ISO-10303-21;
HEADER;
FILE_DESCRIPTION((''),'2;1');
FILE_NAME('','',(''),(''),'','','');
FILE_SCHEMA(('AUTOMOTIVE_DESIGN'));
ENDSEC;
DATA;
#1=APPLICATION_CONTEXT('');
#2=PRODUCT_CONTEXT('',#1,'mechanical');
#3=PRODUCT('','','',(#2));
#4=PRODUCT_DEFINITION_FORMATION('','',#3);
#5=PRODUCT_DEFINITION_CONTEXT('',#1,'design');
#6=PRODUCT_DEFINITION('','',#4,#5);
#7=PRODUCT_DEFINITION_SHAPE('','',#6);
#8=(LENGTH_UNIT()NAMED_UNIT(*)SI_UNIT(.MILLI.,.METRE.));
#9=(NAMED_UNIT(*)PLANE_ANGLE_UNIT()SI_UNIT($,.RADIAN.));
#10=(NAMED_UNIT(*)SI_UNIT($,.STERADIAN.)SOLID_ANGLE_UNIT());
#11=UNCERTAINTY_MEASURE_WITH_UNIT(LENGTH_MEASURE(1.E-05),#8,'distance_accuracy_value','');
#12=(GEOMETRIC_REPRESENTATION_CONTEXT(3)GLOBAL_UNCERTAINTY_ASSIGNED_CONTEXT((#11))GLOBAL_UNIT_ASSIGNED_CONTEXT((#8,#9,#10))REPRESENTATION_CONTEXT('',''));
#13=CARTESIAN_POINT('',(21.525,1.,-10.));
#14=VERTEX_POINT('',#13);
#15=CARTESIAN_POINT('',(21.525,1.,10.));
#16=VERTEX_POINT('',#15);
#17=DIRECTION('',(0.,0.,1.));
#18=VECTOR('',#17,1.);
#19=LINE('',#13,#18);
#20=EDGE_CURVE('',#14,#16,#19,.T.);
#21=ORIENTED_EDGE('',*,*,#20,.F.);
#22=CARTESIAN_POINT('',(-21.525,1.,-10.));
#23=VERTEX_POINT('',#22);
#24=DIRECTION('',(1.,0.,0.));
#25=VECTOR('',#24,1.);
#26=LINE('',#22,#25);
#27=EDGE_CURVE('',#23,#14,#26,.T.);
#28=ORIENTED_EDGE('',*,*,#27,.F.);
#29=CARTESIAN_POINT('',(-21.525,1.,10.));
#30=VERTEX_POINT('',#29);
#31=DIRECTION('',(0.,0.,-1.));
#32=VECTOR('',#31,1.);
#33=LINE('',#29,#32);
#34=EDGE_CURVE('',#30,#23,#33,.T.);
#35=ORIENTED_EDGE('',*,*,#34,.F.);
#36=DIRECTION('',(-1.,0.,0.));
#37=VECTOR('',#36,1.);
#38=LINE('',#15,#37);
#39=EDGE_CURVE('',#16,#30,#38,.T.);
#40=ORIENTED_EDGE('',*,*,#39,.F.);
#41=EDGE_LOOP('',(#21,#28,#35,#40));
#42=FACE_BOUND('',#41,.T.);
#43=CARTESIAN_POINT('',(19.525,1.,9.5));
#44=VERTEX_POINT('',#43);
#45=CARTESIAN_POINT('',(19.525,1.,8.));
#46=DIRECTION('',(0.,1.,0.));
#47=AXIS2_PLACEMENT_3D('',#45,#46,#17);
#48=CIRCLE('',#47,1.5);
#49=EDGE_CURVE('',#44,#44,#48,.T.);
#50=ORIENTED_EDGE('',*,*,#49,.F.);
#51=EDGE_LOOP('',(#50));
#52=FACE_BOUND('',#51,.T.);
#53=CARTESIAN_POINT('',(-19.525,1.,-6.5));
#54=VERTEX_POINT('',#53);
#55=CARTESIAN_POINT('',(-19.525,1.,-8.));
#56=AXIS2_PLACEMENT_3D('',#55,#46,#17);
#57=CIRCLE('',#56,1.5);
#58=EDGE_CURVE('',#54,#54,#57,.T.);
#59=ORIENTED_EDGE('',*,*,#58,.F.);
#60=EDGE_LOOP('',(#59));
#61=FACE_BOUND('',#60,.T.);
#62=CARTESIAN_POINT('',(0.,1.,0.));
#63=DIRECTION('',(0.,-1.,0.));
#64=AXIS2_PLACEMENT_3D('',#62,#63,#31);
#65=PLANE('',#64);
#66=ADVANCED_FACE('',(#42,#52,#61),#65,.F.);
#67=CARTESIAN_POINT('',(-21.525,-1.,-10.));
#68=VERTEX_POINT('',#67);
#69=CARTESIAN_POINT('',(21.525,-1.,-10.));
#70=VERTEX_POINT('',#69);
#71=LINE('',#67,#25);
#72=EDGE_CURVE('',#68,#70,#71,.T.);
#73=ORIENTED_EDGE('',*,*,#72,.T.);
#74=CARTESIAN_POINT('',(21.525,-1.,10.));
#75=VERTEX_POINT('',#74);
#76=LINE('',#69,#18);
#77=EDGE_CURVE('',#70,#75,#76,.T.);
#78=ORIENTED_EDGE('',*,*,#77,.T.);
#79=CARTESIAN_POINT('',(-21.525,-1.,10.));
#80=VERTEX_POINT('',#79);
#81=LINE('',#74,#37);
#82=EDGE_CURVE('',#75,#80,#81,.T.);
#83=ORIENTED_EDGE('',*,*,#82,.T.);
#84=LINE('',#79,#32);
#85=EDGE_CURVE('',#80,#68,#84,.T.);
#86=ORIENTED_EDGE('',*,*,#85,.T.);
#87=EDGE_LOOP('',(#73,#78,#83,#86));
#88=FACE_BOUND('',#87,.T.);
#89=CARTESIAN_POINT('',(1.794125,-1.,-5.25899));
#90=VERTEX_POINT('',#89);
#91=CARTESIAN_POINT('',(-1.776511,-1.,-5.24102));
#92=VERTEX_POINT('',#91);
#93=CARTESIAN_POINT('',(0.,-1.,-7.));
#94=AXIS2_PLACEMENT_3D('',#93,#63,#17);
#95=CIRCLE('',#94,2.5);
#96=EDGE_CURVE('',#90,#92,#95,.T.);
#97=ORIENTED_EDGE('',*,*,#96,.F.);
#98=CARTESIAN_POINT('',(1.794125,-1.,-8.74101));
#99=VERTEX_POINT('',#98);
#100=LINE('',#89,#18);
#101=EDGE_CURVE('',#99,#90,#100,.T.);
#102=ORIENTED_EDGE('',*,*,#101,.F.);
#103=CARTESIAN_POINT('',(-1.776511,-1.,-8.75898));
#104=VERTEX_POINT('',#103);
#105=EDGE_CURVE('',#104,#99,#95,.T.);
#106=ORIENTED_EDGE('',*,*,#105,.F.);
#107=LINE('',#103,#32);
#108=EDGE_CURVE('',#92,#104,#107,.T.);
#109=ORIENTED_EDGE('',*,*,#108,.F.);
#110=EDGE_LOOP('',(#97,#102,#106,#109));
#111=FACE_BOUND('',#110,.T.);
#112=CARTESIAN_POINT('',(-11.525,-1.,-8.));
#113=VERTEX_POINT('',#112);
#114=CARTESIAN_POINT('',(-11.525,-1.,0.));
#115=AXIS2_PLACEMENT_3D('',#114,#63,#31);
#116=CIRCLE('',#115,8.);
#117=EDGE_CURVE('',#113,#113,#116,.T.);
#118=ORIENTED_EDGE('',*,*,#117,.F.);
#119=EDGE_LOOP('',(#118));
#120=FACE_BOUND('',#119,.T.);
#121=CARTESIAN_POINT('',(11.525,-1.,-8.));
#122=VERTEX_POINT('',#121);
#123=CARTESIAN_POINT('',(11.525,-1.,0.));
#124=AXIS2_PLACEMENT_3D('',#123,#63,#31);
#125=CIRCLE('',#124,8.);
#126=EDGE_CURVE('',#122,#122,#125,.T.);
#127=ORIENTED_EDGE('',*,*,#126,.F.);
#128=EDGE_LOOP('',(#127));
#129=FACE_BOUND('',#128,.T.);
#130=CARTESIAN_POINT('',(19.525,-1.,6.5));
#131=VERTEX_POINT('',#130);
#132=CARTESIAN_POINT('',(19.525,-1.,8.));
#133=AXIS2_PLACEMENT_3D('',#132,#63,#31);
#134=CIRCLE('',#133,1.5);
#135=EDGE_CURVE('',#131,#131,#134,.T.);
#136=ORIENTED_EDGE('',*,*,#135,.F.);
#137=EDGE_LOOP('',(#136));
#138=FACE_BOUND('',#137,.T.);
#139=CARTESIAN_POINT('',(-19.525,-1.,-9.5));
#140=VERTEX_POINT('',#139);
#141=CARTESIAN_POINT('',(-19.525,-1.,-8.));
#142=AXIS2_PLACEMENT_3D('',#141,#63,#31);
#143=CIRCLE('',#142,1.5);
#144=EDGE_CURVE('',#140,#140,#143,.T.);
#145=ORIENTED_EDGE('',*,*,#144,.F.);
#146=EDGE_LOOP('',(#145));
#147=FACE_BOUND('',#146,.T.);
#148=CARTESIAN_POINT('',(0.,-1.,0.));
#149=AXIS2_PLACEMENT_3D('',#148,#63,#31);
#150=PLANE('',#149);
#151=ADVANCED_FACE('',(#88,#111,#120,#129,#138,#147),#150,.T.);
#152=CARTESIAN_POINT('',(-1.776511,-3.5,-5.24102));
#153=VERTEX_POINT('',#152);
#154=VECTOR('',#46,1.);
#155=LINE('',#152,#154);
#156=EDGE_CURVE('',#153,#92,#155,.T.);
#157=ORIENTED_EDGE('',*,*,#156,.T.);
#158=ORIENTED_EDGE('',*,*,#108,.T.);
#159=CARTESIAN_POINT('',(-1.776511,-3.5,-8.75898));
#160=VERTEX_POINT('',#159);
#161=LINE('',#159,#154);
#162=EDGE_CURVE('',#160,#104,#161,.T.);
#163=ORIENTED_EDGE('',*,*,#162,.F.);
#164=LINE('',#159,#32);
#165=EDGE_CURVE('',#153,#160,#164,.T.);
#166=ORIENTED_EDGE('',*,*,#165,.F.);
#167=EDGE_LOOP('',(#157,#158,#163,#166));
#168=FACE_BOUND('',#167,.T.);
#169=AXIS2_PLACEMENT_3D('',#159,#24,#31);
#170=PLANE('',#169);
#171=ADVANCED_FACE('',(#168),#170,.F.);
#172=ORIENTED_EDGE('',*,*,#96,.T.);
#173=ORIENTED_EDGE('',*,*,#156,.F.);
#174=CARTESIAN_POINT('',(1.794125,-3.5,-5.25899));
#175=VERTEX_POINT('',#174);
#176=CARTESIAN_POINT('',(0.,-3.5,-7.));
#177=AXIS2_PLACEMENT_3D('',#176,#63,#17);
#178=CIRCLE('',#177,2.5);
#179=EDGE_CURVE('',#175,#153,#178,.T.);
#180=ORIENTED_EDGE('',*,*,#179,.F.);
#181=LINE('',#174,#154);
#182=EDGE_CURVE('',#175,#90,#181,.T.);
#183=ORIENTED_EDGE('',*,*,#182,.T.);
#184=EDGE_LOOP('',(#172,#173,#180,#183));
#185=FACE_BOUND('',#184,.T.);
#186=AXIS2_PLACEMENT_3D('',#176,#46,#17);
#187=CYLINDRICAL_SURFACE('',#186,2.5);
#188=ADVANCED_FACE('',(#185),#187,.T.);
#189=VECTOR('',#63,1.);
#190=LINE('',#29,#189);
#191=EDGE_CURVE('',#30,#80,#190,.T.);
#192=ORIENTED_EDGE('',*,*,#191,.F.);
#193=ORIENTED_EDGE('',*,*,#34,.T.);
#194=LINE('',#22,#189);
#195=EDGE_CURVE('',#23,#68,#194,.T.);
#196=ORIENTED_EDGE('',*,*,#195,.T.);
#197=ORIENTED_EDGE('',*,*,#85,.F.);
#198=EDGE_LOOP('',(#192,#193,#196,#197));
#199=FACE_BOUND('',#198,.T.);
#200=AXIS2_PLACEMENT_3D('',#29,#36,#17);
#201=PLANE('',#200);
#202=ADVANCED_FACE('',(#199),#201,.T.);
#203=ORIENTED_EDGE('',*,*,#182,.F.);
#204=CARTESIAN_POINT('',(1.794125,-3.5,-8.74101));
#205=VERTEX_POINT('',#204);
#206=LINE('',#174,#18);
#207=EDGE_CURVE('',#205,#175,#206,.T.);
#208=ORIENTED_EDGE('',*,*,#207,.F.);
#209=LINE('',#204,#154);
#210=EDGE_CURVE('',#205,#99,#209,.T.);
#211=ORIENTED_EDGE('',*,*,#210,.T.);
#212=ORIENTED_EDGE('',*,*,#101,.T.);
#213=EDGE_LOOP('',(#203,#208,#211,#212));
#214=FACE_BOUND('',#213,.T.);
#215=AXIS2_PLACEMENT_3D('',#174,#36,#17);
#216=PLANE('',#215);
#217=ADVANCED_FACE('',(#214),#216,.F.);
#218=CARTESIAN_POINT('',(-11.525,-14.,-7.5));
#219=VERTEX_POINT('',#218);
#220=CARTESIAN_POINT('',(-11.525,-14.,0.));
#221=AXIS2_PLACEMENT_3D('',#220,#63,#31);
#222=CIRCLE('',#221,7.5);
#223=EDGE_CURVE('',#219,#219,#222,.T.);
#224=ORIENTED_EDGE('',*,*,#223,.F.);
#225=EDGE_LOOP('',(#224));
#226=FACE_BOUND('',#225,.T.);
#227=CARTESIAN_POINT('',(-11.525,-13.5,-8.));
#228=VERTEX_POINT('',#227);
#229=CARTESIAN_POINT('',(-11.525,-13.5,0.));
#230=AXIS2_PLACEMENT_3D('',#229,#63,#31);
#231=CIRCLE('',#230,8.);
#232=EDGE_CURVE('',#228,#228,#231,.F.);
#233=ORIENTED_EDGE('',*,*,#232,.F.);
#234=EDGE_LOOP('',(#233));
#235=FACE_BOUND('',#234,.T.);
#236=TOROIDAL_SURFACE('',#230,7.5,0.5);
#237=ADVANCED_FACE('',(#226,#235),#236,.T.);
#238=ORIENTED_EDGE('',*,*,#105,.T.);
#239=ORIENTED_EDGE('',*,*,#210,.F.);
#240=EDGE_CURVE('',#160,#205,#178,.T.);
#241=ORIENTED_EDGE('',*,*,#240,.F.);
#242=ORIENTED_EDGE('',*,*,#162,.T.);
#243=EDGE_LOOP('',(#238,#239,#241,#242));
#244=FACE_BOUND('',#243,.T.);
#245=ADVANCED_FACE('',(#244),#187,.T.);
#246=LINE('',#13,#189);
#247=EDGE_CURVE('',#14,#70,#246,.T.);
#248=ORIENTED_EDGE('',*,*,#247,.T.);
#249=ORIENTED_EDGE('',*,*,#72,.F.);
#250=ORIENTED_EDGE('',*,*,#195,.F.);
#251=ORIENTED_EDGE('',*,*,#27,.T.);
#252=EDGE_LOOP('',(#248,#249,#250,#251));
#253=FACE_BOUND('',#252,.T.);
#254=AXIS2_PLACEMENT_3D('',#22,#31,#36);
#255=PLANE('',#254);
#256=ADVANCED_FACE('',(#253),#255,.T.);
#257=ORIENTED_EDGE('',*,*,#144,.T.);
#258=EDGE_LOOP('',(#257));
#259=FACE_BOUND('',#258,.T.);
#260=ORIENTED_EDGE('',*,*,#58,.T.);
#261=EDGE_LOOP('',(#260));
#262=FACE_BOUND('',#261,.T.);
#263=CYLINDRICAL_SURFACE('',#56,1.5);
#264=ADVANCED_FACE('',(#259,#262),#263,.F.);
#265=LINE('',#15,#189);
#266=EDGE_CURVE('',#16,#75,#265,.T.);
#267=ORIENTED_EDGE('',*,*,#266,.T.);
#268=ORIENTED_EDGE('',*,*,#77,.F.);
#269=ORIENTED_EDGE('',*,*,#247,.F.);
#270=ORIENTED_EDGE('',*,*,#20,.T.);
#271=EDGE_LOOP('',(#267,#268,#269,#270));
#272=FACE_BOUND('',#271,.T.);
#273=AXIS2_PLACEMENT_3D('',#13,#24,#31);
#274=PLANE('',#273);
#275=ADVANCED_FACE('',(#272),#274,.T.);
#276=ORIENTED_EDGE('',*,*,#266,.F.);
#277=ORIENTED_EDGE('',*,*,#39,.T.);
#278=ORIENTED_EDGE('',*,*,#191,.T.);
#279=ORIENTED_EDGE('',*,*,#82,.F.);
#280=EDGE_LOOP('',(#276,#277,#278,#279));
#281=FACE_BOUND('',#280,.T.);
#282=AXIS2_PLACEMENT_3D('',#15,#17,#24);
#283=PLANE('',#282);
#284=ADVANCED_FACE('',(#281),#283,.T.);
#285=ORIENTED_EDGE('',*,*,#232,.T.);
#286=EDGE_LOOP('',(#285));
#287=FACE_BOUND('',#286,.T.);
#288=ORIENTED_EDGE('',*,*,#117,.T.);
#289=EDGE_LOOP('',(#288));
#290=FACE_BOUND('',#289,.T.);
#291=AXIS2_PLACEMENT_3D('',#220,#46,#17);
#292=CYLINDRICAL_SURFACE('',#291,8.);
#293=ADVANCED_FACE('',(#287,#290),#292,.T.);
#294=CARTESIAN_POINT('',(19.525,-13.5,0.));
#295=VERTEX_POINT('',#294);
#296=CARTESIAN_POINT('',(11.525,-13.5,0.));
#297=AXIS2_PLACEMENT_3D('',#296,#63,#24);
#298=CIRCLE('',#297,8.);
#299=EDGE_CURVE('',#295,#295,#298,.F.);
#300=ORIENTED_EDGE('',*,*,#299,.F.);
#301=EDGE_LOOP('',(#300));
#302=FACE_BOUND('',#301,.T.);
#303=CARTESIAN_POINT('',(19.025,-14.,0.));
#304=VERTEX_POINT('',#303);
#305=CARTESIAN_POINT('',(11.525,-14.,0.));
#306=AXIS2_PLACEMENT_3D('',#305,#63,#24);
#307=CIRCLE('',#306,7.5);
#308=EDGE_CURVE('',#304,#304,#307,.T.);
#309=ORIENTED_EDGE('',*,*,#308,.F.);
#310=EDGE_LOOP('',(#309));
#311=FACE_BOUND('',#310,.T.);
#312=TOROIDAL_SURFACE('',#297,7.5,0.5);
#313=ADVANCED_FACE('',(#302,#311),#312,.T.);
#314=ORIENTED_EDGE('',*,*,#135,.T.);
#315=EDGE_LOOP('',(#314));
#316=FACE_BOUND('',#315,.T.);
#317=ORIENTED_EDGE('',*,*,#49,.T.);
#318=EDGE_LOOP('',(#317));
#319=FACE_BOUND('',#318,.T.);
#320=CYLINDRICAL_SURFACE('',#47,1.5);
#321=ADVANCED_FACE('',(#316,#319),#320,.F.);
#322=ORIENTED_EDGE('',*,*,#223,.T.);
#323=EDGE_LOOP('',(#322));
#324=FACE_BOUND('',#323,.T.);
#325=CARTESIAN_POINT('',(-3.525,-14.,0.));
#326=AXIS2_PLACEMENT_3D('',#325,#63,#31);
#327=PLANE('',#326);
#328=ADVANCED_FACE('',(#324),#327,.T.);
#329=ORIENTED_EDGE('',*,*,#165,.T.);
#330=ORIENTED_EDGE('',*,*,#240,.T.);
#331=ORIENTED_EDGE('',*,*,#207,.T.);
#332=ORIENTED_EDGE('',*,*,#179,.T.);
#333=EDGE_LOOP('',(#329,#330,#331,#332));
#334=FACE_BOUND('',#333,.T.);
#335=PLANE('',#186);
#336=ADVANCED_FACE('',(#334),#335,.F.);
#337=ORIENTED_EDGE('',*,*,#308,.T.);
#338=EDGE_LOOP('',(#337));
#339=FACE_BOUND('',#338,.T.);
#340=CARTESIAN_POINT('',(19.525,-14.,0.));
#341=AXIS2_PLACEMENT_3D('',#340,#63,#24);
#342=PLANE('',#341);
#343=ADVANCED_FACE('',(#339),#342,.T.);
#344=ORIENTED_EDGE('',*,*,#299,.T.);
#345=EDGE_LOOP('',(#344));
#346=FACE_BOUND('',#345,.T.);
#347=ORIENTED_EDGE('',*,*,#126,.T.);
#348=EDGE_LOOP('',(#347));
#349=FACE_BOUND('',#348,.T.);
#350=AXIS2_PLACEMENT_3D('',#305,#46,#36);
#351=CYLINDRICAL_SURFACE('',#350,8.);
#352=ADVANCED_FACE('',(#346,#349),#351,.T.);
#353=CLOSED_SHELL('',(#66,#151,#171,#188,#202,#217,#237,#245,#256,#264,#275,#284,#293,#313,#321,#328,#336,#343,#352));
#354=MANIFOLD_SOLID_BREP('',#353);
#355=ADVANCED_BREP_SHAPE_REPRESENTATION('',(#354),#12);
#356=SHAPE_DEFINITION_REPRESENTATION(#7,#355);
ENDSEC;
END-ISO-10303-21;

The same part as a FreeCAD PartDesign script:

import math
import FreeCAD as App
import Part
import Sketcher

V = App.Vector


def edges_at(feature, points):
    """Names of the edges that pass closest to the given points."""
    edges = feature.Shape.Edges
    near = lambda p: min(range(len(edges)), key=lambda i: edges[i].distToShape(Part.Vertex(*p))[0])
    return sorted({f"Edge{near(p) + 1}" for p in points})

doc = App.newDocument("Part")
params = doc.addObject("Spreadsheet::Sheet", "Params")
for row, (alias, value) in enumerate([
    ("sketch1_height", "20 mm"),
    ("sketch1_width", "43.05 mm"),
    ("pad1_length", "2 mm"),
    ("sketch2_radius", "2.5 mm"),
    ("pad2_length", "2.5 mm"),
    ("sketch3_width", "8 mm"),
    ("sketch3_height", "13 mm"),
    ("revolution_angle", "360 deg"),
    ("sketch4_width", "8 mm"),
    ("sketch4_height", "13 mm"),
    ("revolution2_angle", "360 deg"),
    ("sketch5_diameter", "3 mm"),
    ("hole_diameter", "3 mm"),
    ("hole_depth", "15 mm"),
    ("fillet_radius", "0.5 mm"),
], start=1):
    params.set(f"A{row}", alias)
    params.set(f"B{row}", "=" + value)
    params.setAlias(f"B{row}", alias)

body = doc.addObject("PartDesign::Body", "Body")

# Sketch on XZ plane
sketch1 = doc.addObject("Sketcher::SketchObject", "Sketch")
body.addObject(sketch1)
sketch1.AttachmentSupport = (doc.XZ_Plane, [""])
sketch1.MapMode = "FlatFace"
sketch1.AttachmentOffset = App.Placement(V(0, 0, 1), App.Rotation())
sketch1.addGeometry(Part.LineSegment(V(-22, 10, 0), V(-22, -10, 0)), False)
sketch1.addGeometry(Part.LineSegment(V(-22, -10, 0), V(22, -10, 0)), False)
sketch1.addGeometry(Part.LineSegment(V(22, -10, 0), V(22, 10, 0)), False)
sketch1.addGeometry(Part.LineSegment(V(22, 10, 0), V(-22, 10, 0)), False)
sketch1.addConstraint(Sketcher.Constraint("Coincident", 0, 2, 1, 1))
sketch1.addConstraint(Sketcher.Constraint("Coincident", 1, 2, 2, 1))
sketch1.addConstraint(Sketcher.Constraint("Coincident", 2, 2, 3, 1))
sketch1.addConstraint(Sketcher.Constraint("Coincident", 3, 2, 0, 1))
sketch1.addConstraint(Sketcher.Constraint("Vertical", 0))
sketch1.addConstraint(Sketcher.Constraint("Horizontal", 1))
sketch1.addConstraint(Sketcher.Constraint("Vertical", 2))
sketch1.addConstraint(Sketcher.Constraint("Horizontal", 3))
sketch1.addConstraint(Sketcher.Constraint("Symmetric", 0, 2, 2, 2, -1, 1))
sketch1.addConstraint(Sketcher.Constraint("DistanceY", 0, 2, 0, 1, 20.0))
sketch1.addConstraint(Sketcher.Constraint("DistanceX", 1, 1, 1, 2, 43.05))
sketch1.setExpression("Constraints[9]", "Params.sketch1_height")
sketch1.setExpression("Constraints[10]", "Params.sketch1_width")
pad1 = doc.addObject("PartDesign::Pad", "Pad")
body.addObject(pad1)
pad1.Profile = sketch1
pad1.setExpression("Length", "Params.pad1_length")
pad1.Reversed = True

# Sketch on XZ plane
sketch2 = doc.addObject("Sketcher::SketchObject", "Sketch001")
body.addObject(sketch2)
sketch2.AttachmentSupport = (doc.XZ_Plane, [""])
sketch2.MapMode = "FlatFace"
sketch2.AttachmentOffset = App.Placement(V(0, 0, 1), App.Rotation())
sketch2.addGeometry(Part.LineSegment(V(-1.8, -5.2, 0), V(-1.8, -8.8, 0)), False)
sketch2.addGeometry(Part.ArcOfCircle(Part.Circle(V(0, -7, 0), V(0, 0, 1), 2.5), math.radians(-135), math.radians(-44)), False)
sketch2.addGeometry(Part.LineSegment(V(1.8, -8.7, 0), V(1.8, -5.3, 0)), False)
sketch2.addGeometry(Part.ArcOfCircle(Part.Circle(V(0, -7, 0), V(0, 0, 1), 2.5), math.radians(44), math.radians(135)), False)
sketch2.addConstraint(Sketcher.Constraint("Coincident", 0, 2, 1, 1))
sketch2.addConstraint(Sketcher.Constraint("Coincident", 1, 2, 2, 1))
sketch2.addConstraint(Sketcher.Constraint("Coincident", 2, 2, 3, 1))
sketch2.addConstraint(Sketcher.Constraint("Coincident", 3, 2, 0, 1))
sketch2.addConstraint(Sketcher.Constraint("Vertical", 0))
sketch2.addConstraint(Sketcher.Constraint("Vertical", 2))
sketch2.addConstraint(Sketcher.Constraint("Coincident", 3, 3, 1, 3))
sketch2.addConstraint(Sketcher.Constraint("Equal", 1, 3))
sketch2.addConstraint(Sketcher.Constraint("PointOnObject", 1, 3, -2))
sketch2.addConstraint(Sketcher.Constraint("Radius", 1, 2.5))
sketch2.addConstraint(Sketcher.Constraint("DistanceY", 1, 3, -1, 1, 7.0))
sketch2.addConstraint(Sketcher.Constraint("DistanceY", 0, 2, 0, 1, 3.517959))
sketch2.addConstraint(Sketcher.Constraint("DistanceY", 2, 1, 2, 2, 3.482019))
sketch2.setExpression("Constraints[9]", "Params.sketch2_radius")
pad2 = doc.addObject("PartDesign::Pad", "Pad001")
body.addObject(pad2)
pad2.Profile = sketch2
pad2.setExpression("Length", "Params.pad2_length")

# Sketch on XY plane
sketch3 = doc.addObject("Sketcher::SketchObject", "Sketch002")
body.addObject(sketch3)
sketch3.AttachmentSupport = (doc.XY_Plane, [""])
sketch3.MapMode = "FlatFace"
sketch3.addGeometry(Part.LineSegment(V(-4, -1, 0), V(-4, -14, 0)), False)
sketch3.addGeometry(Part.LineSegment(V(-4, -14, 0), V(-12, -14, 0)), False)
sketch3.addGeometry(Part.LineSegment(V(-12, -14, 0), V(-12, -1, 0)), False)
sketch3.addGeometry(Part.LineSegment(V(-12, -1, 0), V(-4, -1, 0)), False)
sketch3.addGeometry(Part.LineSegment(V(-12, -14, 0), V(-12, -1, 0)), True)  # axis
sketch3.addConstraint(Sketcher.Constraint("Coincident", 0, 2, 1, 1))
sketch3.addConstraint(Sketcher.Constraint("Coincident", 1, 2, 2, 1))
sketch3.addConstraint(Sketcher.Constraint("Coincident", 2, 2, 3, 1))
sketch3.addConstraint(Sketcher.Constraint("Coincident", 3, 2, 0, 1))
sketch3.addConstraint(Sketcher.Constraint("Vertical", 0))
sketch3.addConstraint(Sketcher.Constraint("Horizontal", 1))
sketch3.addConstraint(Sketcher.Constraint("Vertical", 2))
sketch3.addConstraint(Sketcher.Constraint("Horizontal", 3))
sketch3.addConstraint(Sketcher.Constraint("Vertical", 4))
sketch3.addConstraint(Sketcher.Constraint("Coincident", 4, 1, 1, 2))
sketch3.addConstraint(Sketcher.Constraint("Horizontal", 3, 2, 4, 2))
sketch3.addConstraint(Sketcher.Constraint("DistanceX", 1, 2, 1, 1, 8.0))
sketch3.addConstraint(Sketcher.Constraint("DistanceY", 0, 2, 0, 1, 13.0))
sketch3.addConstraint(Sketcher.Constraint("DistanceY", 0, 2, -1, 1, 14.0))
sketch3.addConstraint(Sketcher.Constraint("DistanceX", 0, 2, -1, 1, 3.525))
sketch3.setExpression("Constraints[11]", "Params.sketch3_width")
sketch3.setExpression("Constraints[12]", "Params.sketch3_height")
revolution = doc.addObject("PartDesign::Revolution", "Revolution")
body.addObject(revolution)
revolution.Profile = sketch3
revolution.ReferenceAxis = (sketch3, ["Axis0"])
revolution.setExpression("Angle", "Params.revolution_angle")

# Sketch on XY plane
sketch4 = doc.addObject("Sketcher::SketchObject", "Sketch003")
body.addObject(sketch4)
sketch4.AttachmentSupport = (doc.XY_Plane, [""])
sketch4.MapMode = "FlatFace"
sketch4.addGeometry(Part.LineSegment(V(20, -1, 0), V(20, -14, 0)), False)
sketch4.addGeometry(Part.LineSegment(V(20, -14, 0), V(12, -14, 0)), False)
sketch4.addGeometry(Part.LineSegment(V(12, -14, 0), V(12, -1, 0)), False)
sketch4.addGeometry(Part.LineSegment(V(12, -1, 0), V(20, -1, 0)), False)
sketch4.addGeometry(Part.LineSegment(V(12, -14, 0), V(12, -1, 0)), True)  # axis
sketch4.addConstraint(Sketcher.Constraint("Coincident", 0, 2, 1, 1))
sketch4.addConstraint(Sketcher.Constraint("Coincident", 1, 2, 2, 1))
sketch4.addConstraint(Sketcher.Constraint("Coincident", 2, 2, 3, 1))
sketch4.addConstraint(Sketcher.Constraint("Coincident", 3, 2, 0, 1))
sketch4.addConstraint(Sketcher.Constraint("Vertical", 0))
sketch4.addConstraint(Sketcher.Constraint("Horizontal", 1))
sketch4.addConstraint(Sketcher.Constraint("Vertical", 2))
sketch4.addConstraint(Sketcher.Constraint("Horizontal", 3))
sketch4.addConstraint(Sketcher.Constraint("Vertical", 4))
sketch4.addConstraint(Sketcher.Constraint("Coincident", 4, 1, 1, 2))
sketch4.addConstraint(Sketcher.Constraint("Horizontal", 3, 2, 4, 2))
sketch4.addConstraint(Sketcher.Constraint("DistanceX", 1, 2, 1, 1, 8.0))
sketch4.addConstraint(Sketcher.Constraint("DistanceY", 0, 2, 0, 1, 13.0))
sketch4.addConstraint(Sketcher.Constraint("DistanceY", 0, 2, -1, 1, 14.0))
sketch4.addConstraint(Sketcher.Constraint("DistanceX", -1, 1, 0, 2, 19.525))
sketch4.setExpression("Constraints[11]", "Params.sketch4_width")
sketch4.setExpression("Constraints[12]", "Params.sketch4_height")
revolution2 = doc.addObject("PartDesign::Revolution", "Revolution001")
body.addObject(revolution2)
revolution2.Profile = sketch4
revolution2.ReferenceAxis = (sketch4, ["Axis0"])
revolution2.setExpression("Angle", "Params.revolution2_angle")

# Sketch on XZ plane
sketch5 = doc.addObject("Sketcher::SketchObject", "Sketch004")
body.addObject(sketch5)
sketch5.AttachmentSupport = (doc.XZ_Plane, [""])
sketch5.MapMode = "FlatFace"
sketch5.AttachmentOffset = App.Placement(V(0, 0, -1), App.Rotation())
sketch5.addGeometry(Part.Circle(V(-19.5, -8, 0), V(0, 0, 1), 1.5), False)
sketch5.addGeometry(Part.Circle(V(19.5, 8, 0), V(0, 0, 1), 1.5), False)
sketch5.addConstraint(Sketcher.Constraint("Equal", 0, 1))
sketch5.addConstraint(Sketcher.Constraint("Symmetric", 0, 3, 1, 3, -1, 1))
sketch5.addConstraint(Sketcher.Constraint("Diameter", 0, 3.0))
sketch5.addConstraint(Sketcher.Constraint("DistanceY", 0, 3, -1, 1, 8.0))
sketch5.addConstraint(Sketcher.Constraint("DistanceX", 0, 3, 1, 3, 39.05))
sketch5.setExpression("Constraints[2]", "Params.sketch5_diameter")
doc.recompute()
hole = doc.addObject("PartDesign::Hole", "Hole")
body.addObject(hole)
hole.Profile = sketch5
hole.ThreadType = "None"
hole.setExpression("Diameter", "Params.hole_diameter")
hole.DepthType = "Dimension"
hole.setExpression("Depth", "Params.hole_depth")
hole.DrillPoint = "Flat"
hole.Reversed = True
doc.recompute()

fillet = doc.addObject("PartDesign::Fillet", "Fillet")
body.addObject(fillet)
fillet.Base = (hole, edges_at(hole, [(-19.525, -14, 0), (3.525, -14, 0)]))
fillet.setExpression("Radius", "Params.fillet_radius")

doc.recompute()
